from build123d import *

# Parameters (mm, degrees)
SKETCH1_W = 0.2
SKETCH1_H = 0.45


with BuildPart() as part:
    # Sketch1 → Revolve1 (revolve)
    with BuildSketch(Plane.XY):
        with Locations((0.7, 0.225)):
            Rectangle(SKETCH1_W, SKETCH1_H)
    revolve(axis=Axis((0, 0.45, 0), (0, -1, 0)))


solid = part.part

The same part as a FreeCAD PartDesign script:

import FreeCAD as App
import Part
import Sketcher
Q = App.Units.Quantity


def add_polygon(sketch, points):
    """Adds a closed chain of lines whose ends are joined by coincident constraints."""
    first, n = sketch.GeometryCount, len(points)
    for a, b in zip(points, points[1:] + points[:1]):
        sketch.addGeometry(Part.LineSegment(App.Vector(*a, 0), App.Vector(*b, 0)), False)
    for i in range(n):
        sketch.addConstraint(Sketcher.Constraint("Coincident", first + i, 2, first + (i + 1) % n, 1))

doc = App.newDocument("Part")
body = doc.addObject("PartDesign::Body", "Body")

sketch1 = doc.addObject("Sketcher::SketchObject", "Sketch")
body.addObject(sketch1)
sketch1.AttachmentSupport = (doc.XY_Plane, [""])
sketch1.MapMode = "FlatFace"
add_polygon(sketch1, [(0.6, 0.45), (0.6, 0), (0.8, 0), (0.8, 0.45)])
sketch1.addConstraint([
    Sketcher.Constraint("Vertical", 0),
    Sketcher.Constraint("Horizontal", 1),
    Sketcher.Constraint("Vertical", 2),
    Sketcher.Constraint("Horizontal", 3),
    Sketcher.Constraint("PointOnObject", 0, 2, -1),
    Sketcher.Constraint("DistanceX", 1, 1, 1, 2, Q("0.2 mm")),
    Sketcher.Constraint("DistanceY", 0, 2, 0, 1, Q("0.45 mm")),
    Sketcher.Constraint("DistanceX", -1, 1, 0, 2, Q("0.6 mm")),
])
revolution = doc.addObject("PartDesign::Revolution", "Revolution")
body.addObject(revolution)
revolution.Profile = sketch1
revolution.ReferenceAxis = (sketch1, ["V_Axis"])
revolution.Angle = 360

doc.recompute()
